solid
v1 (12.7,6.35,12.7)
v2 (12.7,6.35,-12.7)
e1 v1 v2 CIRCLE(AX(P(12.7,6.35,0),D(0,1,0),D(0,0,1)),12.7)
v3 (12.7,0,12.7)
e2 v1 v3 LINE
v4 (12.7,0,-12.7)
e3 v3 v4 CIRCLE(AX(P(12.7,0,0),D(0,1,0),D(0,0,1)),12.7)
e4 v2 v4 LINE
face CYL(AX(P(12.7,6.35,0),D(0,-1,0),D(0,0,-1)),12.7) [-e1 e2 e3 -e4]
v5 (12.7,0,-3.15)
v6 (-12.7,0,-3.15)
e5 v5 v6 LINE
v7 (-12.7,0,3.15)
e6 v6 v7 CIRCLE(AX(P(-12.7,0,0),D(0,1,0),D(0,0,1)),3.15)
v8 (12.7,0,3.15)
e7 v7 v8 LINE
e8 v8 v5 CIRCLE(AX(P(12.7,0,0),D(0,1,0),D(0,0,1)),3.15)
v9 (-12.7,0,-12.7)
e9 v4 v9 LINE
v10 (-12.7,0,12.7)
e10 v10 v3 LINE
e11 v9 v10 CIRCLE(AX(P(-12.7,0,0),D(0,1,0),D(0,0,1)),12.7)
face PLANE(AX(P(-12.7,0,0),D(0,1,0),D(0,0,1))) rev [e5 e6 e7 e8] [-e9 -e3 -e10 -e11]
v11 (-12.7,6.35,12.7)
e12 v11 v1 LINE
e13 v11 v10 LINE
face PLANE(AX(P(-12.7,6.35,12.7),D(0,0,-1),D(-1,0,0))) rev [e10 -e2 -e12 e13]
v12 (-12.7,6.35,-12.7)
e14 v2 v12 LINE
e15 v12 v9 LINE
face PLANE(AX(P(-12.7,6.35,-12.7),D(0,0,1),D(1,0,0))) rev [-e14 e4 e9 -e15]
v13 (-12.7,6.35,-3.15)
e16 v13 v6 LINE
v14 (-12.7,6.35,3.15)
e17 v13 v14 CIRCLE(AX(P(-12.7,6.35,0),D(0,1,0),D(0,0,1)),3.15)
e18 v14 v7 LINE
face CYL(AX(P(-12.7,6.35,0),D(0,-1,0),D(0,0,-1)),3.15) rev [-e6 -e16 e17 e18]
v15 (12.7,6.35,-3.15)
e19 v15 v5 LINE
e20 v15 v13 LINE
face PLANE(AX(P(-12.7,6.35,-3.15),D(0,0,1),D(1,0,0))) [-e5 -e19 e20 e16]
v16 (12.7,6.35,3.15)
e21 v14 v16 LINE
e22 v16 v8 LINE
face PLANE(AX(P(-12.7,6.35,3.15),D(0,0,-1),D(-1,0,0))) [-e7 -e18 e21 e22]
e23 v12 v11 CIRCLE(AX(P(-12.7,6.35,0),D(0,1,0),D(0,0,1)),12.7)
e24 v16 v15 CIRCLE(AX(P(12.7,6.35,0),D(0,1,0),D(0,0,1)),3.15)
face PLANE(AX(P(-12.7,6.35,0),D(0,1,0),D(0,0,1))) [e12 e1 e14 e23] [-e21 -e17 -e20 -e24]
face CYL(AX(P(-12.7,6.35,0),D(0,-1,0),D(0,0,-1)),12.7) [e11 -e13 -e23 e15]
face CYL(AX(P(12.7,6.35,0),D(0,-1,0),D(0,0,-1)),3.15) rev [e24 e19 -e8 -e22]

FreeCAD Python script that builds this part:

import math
import FreeCAD as App
import Part
import Sketcher

V = App.Vector
Q = App.Units.Quantity

doc = App.newDocument("Part")
body = doc.addObject("PartDesign::Body", "Body")

# Sketch on XZ plane
sketch1 = body.newObject("Sketcher::SketchObject", "Sketch")
sketch1.AttachmentSupport = (doc.getObject("XZ_Plane"), [""])
sketch1.MapMode = "FlatFace"
sketch1.addGeometry([
    Part.LineSegment(V(12.7, -12.7, 0), V(-12.7, -12.7, 0)),  # 0
    Part.ArcOfCircle(Part.Circle(V(-12.7, 0, 0), V(0, 0, 1), 12.7), math.radians(90), math.radians(270)),  # 1
    Part.LineSegment(V(-12.7, 12.7, 0), V(12.7, 12.7, 0)),  # 2
    Part.ArcOfCircle(Part.Circle(V(12.7, 0, 0), V(0, 0, 1), 12.7), math.radians(-90), math.radians(90)),  # 3
    Part.LineSegment(V(-12.7, -3.15, 0), V(12.7, -3.15, 0)),  # 4
    Part.ArcOfCircle(Part.Circle(V(12.7, 0, 0), V(0, 0, 1), 3.15), math.radians(-90), math.radians(90)),  # 5
    Part.LineSegment(V(12.7, 3.15, 0), V(-12.7, 3.15, 0)),  # 6
    Part.ArcOfCircle(Part.Circle(V(-12.7, 0, 0), V(0, 0, 1), 3.15), math.radians(90), math.radians(270)),  # 7
], False)
sketch1.addConstraint([
    Sketcher.Constraint("Tangent", 0, 2, 1, 2),
    Sketcher.Constraint("Tangent", 1, 1, 2, 1),
    Sketcher.Constraint("Tangent", 2, 2, 3, 2),
    Sketcher.Constraint("Tangent", 3, 1, 0, 1),
    Sketcher.Constraint("Tangent", 4, 2, 5, 1),
    Sketcher.Constraint("Tangent", 5, 2, 6, 1),
    Sketcher.Constraint("Tangent", 6, 2, 7, 1),
    Sketcher.Constraint("Tangent", 7, 2, 4, 1),
    Sketcher.Constraint("Horizontal", 0),
    Sketcher.Constraint("Horizontal", 2),
    Sketcher.Constraint("Horizontal", 4),
    Sketcher.Constraint("Horizontal", 6),
    Sketcher.Constraint("Coincident", 5, 3, 3, 3),
    Sketcher.Constraint("Symmetric", 1, 3, 3, 3, -1, 1),
    Sketcher.Constraint("Vertical", 7, 3, 0, 2),
    Sketcher.Constraint("Radius", 1, Q("0.5 in")),
    Sketcher.Constraint("DistanceX", 0, 2, 0, 1, Q("1 in")),
    Sketcher.Constraint("Radius", 5, 3.15),
])
pad1 = body.newObject("PartDesign::Pad", "Pad")
pad1.Profile = sketch1
pad1.Length = Q("0.25 in")
pad1.Reversed = True

doc.recompute()
